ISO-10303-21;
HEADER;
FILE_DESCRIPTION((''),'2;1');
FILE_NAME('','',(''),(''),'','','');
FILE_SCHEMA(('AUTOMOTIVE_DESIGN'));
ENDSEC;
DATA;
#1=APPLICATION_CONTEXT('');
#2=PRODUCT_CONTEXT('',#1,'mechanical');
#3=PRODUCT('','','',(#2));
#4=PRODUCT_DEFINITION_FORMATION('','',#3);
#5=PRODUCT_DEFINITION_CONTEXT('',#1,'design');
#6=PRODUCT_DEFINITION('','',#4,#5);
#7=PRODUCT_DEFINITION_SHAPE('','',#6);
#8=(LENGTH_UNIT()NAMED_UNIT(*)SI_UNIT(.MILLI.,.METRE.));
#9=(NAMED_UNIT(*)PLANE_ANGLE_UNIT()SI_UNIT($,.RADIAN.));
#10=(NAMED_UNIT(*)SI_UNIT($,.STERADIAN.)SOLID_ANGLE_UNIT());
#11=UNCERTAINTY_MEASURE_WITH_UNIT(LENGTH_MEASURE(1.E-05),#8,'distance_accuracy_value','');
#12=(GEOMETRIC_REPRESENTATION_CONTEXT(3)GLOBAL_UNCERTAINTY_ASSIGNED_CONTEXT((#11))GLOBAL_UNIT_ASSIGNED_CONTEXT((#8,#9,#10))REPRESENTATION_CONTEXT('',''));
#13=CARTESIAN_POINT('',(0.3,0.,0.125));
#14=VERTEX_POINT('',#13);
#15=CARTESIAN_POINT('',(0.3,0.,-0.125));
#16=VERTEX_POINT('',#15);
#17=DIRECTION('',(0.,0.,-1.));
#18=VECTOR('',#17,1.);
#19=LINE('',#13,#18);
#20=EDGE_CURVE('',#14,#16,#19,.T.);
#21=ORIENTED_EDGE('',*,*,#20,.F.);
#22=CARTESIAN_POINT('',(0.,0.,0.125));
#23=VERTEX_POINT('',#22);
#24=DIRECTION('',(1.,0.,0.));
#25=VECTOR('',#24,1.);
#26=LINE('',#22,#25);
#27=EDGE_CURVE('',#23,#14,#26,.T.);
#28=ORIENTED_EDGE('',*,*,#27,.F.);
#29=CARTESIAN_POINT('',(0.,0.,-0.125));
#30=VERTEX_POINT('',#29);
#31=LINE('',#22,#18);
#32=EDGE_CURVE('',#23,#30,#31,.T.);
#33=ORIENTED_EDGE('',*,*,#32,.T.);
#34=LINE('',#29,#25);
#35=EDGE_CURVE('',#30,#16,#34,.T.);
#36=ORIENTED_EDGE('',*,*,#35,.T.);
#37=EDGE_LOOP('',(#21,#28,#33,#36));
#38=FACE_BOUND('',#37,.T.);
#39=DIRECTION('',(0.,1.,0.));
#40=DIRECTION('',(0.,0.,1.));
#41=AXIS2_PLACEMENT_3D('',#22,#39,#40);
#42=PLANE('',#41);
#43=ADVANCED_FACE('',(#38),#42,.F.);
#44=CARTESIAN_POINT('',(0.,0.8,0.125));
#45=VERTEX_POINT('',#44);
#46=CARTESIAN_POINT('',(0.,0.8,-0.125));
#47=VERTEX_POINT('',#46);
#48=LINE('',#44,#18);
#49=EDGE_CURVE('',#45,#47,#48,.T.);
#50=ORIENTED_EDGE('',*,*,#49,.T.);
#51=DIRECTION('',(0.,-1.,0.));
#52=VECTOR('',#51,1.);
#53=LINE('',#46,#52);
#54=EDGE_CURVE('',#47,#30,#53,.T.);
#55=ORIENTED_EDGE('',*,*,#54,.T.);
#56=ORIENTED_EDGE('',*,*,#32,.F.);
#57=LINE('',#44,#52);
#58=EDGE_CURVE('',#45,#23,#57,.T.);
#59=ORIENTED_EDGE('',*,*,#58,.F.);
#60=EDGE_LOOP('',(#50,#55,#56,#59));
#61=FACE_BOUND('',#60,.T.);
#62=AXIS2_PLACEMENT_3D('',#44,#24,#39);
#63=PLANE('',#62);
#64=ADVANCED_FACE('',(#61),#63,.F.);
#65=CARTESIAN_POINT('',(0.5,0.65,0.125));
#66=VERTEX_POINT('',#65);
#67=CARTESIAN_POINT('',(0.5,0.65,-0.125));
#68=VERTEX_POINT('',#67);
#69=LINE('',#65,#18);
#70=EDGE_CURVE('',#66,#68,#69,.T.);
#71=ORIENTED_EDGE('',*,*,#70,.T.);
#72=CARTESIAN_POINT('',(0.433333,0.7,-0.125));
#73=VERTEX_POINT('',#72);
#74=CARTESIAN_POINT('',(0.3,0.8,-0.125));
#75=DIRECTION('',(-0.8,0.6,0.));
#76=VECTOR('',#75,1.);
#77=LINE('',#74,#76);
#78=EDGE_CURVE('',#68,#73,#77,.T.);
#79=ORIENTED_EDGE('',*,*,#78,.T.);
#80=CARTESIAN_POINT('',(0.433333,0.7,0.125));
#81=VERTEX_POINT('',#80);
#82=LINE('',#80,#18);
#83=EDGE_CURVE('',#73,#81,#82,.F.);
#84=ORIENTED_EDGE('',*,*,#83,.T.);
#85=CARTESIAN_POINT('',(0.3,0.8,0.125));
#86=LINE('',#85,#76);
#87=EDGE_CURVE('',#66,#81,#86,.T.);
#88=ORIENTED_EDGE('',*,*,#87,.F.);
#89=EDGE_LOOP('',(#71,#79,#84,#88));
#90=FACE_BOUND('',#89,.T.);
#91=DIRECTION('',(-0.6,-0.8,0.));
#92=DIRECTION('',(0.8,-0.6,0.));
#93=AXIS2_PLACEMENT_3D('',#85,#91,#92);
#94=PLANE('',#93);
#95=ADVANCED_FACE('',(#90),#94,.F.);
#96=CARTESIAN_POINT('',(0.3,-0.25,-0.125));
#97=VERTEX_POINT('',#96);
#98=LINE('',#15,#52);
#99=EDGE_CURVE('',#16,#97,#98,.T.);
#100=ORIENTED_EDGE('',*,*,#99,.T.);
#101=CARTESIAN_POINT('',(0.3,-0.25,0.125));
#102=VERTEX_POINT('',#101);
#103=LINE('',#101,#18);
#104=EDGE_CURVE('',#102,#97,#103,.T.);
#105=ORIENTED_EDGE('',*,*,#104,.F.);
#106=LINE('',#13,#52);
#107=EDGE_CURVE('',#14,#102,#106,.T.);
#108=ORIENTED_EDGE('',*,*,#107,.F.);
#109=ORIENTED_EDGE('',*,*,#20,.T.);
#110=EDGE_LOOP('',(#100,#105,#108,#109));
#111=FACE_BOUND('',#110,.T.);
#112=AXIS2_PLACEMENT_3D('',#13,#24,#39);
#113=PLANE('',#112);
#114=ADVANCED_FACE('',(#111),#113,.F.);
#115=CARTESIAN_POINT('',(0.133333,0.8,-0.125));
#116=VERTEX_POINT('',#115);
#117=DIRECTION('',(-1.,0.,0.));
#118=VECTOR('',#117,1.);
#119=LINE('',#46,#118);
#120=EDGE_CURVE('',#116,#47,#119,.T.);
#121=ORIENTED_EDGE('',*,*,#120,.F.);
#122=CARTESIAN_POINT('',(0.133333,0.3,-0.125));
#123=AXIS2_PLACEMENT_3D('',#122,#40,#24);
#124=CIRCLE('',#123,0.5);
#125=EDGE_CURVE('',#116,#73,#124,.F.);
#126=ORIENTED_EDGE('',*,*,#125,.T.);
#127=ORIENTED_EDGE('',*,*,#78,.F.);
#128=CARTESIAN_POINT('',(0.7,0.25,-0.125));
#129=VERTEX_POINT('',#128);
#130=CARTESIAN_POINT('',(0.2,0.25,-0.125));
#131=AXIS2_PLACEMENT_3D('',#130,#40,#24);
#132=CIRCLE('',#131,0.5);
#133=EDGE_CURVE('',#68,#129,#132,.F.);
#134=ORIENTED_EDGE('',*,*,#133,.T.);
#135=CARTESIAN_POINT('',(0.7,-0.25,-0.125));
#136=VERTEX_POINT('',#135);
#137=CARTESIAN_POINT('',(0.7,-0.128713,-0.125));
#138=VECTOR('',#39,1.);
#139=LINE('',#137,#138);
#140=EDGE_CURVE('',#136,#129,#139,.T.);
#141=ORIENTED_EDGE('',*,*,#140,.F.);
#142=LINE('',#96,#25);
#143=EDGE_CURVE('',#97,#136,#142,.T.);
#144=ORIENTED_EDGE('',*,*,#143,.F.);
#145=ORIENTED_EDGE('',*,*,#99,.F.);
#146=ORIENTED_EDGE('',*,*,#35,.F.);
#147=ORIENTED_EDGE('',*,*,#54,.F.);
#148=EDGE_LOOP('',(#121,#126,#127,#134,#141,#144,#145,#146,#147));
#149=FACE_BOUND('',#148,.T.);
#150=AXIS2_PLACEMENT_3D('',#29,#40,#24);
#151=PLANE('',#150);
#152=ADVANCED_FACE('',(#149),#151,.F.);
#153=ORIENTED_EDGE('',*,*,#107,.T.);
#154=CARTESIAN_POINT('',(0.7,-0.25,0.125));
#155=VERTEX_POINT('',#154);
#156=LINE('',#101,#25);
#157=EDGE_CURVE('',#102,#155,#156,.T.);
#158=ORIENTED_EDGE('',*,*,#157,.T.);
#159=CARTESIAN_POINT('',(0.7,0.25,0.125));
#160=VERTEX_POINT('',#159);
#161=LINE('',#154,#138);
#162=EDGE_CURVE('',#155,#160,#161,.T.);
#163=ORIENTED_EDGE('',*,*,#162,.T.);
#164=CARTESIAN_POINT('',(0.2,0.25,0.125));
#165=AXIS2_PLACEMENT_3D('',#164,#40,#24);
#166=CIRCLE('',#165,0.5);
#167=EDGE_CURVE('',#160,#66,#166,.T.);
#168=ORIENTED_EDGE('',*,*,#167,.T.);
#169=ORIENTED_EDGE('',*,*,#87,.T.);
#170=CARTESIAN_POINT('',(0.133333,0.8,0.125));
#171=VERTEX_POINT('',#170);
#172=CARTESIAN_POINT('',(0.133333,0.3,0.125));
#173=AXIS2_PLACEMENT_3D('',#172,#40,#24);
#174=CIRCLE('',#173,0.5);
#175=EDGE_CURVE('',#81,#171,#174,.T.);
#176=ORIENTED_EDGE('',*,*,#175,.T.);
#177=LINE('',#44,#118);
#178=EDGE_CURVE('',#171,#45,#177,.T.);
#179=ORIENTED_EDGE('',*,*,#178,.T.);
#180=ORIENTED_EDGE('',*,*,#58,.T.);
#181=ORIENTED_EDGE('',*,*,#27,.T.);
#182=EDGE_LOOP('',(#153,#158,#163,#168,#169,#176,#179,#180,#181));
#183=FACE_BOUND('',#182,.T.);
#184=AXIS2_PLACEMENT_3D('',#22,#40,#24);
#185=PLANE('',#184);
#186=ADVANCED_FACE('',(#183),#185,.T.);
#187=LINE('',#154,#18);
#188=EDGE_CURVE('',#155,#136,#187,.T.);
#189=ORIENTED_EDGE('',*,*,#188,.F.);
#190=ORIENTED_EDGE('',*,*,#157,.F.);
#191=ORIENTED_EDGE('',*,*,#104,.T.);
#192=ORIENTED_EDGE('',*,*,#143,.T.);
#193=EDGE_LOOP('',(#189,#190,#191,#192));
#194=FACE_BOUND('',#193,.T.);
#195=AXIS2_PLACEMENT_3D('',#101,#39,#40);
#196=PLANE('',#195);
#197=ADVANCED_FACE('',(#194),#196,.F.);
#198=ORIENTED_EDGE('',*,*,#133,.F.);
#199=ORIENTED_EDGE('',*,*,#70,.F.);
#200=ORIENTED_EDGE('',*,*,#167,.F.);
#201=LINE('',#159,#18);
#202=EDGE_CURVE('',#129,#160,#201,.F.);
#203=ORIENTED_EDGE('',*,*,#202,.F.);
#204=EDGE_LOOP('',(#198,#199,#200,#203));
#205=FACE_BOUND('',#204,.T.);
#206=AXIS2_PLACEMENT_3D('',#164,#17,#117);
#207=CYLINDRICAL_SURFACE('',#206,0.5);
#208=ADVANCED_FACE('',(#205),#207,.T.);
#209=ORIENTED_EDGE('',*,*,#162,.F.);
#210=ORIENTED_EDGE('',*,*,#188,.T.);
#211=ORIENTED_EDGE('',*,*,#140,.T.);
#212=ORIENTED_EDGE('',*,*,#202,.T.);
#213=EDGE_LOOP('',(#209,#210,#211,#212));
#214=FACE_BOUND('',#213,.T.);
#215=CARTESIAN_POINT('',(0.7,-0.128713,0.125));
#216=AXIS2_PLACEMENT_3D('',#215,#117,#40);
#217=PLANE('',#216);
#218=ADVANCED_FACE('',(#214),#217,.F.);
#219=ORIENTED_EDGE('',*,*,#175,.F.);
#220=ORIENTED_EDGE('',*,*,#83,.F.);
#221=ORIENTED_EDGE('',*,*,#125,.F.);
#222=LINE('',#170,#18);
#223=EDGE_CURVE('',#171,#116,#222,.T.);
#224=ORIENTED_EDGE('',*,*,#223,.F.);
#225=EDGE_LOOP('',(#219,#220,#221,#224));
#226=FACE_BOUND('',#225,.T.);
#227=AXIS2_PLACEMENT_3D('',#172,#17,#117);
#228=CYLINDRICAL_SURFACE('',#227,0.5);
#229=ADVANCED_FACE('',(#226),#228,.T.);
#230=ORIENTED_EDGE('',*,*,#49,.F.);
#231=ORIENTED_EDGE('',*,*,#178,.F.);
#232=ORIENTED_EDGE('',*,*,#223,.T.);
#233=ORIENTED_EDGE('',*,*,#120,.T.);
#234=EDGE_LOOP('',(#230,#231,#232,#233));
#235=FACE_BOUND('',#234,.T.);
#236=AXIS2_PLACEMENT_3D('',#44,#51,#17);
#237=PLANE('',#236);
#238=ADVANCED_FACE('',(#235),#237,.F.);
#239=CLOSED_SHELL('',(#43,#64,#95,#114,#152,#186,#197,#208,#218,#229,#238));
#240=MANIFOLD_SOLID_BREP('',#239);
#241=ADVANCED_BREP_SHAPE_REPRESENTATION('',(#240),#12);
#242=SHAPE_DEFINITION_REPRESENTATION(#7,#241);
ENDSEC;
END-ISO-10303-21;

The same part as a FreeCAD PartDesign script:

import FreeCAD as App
import Part
import Sketcher


def edges_at(feature, points):
    """Names of the edges that pass closest to the given points."""
    edges = feature.Shape.Edges
    near = lambda p: min(range(len(edges)), key=lambda i: edges[i].distToShape(Part.Vertex(*p))[0])
    return sorted({f"Edge{near(p) + 1}" for p in points})


def add_polygon(sketch, points):
    """Adds a closed chain of lines whose ends are joined by coincident constraints."""
    first, n = sketch.GeometryCount, len(points)
    for a, b in zip(points, points[1:] + points[:1]):
        sketch.addGeometry(Part.LineSegment(App.Vector(*a, 0), App.Vector(*b, 0)), False)
    for i in range(n):
        sketch.addConstraint(Sketcher.Constraint("Coincident", first + i, 2, first + (i + 1) % n, 1))

doc = App.newDocument("Part")
body = doc.addObject("PartDesign::Body", "Body")

# Sketch on XY plane
sketch1 = body.newObject("Sketcher::SketchObject", "Sketch")
sketch1.AttachmentSupport = (doc.getObject("XY_Plane"), [""])
sketch1.MapMode = "FlatFace"
add_polygon(sketch1, [(0, 0), (0.3, 0), (0.3, -0.25), (0.7, -0.25), (0.7, 0.5), (0.3, 0.8), (0, 0.8)])  # lines 0-6
sketch1.addConstraint([
    Sketcher.Constraint("Horizontal", 0),
    Sketcher.Constraint("Vertical", 1),
    Sketcher.Constraint("Horizontal", 2),
    Sketcher.Constraint("Vertical", 3),
    Sketcher.Constraint("Horizontal", 5),
    Sketcher.Constraint("Vertical", 6),
    Sketcher.Constraint("Coincident", 6, 2, -1, 1),
    Sketcher.Constraint("Vertical", 1, 2, 4, 2),
    Sketcher.Constraint("DistanceX", 0, 1, 0, 2, 0.3),
    Sketcher.Constraint("DistanceX", 2, 1, 2, 2, 0.4),
    Sketcher.Constraint("DistanceY", 6, 2, 6, 1, 0.8),
    Sketcher.Constraint("Distance", 4, 0.5),
    Sketcher.Constraint("DistanceY", 1, 2, 1, 1, 0.25),
])
pad1 = body.newObject("PartDesign::Pad", "Pad")
pad1.Profile = sketch1
pad1.Length = 0.25
pad1.Midplane = True
doc.recompute()

fillet = body.newObject("PartDesign::Fillet", "Fillet")
fillet.Base = (pad1, edges_at(pad1, [(0.3, 0.8, 0), (0.7, 0.5, 0)]))
fillet.Radius = 0.5

doc.recompute()
